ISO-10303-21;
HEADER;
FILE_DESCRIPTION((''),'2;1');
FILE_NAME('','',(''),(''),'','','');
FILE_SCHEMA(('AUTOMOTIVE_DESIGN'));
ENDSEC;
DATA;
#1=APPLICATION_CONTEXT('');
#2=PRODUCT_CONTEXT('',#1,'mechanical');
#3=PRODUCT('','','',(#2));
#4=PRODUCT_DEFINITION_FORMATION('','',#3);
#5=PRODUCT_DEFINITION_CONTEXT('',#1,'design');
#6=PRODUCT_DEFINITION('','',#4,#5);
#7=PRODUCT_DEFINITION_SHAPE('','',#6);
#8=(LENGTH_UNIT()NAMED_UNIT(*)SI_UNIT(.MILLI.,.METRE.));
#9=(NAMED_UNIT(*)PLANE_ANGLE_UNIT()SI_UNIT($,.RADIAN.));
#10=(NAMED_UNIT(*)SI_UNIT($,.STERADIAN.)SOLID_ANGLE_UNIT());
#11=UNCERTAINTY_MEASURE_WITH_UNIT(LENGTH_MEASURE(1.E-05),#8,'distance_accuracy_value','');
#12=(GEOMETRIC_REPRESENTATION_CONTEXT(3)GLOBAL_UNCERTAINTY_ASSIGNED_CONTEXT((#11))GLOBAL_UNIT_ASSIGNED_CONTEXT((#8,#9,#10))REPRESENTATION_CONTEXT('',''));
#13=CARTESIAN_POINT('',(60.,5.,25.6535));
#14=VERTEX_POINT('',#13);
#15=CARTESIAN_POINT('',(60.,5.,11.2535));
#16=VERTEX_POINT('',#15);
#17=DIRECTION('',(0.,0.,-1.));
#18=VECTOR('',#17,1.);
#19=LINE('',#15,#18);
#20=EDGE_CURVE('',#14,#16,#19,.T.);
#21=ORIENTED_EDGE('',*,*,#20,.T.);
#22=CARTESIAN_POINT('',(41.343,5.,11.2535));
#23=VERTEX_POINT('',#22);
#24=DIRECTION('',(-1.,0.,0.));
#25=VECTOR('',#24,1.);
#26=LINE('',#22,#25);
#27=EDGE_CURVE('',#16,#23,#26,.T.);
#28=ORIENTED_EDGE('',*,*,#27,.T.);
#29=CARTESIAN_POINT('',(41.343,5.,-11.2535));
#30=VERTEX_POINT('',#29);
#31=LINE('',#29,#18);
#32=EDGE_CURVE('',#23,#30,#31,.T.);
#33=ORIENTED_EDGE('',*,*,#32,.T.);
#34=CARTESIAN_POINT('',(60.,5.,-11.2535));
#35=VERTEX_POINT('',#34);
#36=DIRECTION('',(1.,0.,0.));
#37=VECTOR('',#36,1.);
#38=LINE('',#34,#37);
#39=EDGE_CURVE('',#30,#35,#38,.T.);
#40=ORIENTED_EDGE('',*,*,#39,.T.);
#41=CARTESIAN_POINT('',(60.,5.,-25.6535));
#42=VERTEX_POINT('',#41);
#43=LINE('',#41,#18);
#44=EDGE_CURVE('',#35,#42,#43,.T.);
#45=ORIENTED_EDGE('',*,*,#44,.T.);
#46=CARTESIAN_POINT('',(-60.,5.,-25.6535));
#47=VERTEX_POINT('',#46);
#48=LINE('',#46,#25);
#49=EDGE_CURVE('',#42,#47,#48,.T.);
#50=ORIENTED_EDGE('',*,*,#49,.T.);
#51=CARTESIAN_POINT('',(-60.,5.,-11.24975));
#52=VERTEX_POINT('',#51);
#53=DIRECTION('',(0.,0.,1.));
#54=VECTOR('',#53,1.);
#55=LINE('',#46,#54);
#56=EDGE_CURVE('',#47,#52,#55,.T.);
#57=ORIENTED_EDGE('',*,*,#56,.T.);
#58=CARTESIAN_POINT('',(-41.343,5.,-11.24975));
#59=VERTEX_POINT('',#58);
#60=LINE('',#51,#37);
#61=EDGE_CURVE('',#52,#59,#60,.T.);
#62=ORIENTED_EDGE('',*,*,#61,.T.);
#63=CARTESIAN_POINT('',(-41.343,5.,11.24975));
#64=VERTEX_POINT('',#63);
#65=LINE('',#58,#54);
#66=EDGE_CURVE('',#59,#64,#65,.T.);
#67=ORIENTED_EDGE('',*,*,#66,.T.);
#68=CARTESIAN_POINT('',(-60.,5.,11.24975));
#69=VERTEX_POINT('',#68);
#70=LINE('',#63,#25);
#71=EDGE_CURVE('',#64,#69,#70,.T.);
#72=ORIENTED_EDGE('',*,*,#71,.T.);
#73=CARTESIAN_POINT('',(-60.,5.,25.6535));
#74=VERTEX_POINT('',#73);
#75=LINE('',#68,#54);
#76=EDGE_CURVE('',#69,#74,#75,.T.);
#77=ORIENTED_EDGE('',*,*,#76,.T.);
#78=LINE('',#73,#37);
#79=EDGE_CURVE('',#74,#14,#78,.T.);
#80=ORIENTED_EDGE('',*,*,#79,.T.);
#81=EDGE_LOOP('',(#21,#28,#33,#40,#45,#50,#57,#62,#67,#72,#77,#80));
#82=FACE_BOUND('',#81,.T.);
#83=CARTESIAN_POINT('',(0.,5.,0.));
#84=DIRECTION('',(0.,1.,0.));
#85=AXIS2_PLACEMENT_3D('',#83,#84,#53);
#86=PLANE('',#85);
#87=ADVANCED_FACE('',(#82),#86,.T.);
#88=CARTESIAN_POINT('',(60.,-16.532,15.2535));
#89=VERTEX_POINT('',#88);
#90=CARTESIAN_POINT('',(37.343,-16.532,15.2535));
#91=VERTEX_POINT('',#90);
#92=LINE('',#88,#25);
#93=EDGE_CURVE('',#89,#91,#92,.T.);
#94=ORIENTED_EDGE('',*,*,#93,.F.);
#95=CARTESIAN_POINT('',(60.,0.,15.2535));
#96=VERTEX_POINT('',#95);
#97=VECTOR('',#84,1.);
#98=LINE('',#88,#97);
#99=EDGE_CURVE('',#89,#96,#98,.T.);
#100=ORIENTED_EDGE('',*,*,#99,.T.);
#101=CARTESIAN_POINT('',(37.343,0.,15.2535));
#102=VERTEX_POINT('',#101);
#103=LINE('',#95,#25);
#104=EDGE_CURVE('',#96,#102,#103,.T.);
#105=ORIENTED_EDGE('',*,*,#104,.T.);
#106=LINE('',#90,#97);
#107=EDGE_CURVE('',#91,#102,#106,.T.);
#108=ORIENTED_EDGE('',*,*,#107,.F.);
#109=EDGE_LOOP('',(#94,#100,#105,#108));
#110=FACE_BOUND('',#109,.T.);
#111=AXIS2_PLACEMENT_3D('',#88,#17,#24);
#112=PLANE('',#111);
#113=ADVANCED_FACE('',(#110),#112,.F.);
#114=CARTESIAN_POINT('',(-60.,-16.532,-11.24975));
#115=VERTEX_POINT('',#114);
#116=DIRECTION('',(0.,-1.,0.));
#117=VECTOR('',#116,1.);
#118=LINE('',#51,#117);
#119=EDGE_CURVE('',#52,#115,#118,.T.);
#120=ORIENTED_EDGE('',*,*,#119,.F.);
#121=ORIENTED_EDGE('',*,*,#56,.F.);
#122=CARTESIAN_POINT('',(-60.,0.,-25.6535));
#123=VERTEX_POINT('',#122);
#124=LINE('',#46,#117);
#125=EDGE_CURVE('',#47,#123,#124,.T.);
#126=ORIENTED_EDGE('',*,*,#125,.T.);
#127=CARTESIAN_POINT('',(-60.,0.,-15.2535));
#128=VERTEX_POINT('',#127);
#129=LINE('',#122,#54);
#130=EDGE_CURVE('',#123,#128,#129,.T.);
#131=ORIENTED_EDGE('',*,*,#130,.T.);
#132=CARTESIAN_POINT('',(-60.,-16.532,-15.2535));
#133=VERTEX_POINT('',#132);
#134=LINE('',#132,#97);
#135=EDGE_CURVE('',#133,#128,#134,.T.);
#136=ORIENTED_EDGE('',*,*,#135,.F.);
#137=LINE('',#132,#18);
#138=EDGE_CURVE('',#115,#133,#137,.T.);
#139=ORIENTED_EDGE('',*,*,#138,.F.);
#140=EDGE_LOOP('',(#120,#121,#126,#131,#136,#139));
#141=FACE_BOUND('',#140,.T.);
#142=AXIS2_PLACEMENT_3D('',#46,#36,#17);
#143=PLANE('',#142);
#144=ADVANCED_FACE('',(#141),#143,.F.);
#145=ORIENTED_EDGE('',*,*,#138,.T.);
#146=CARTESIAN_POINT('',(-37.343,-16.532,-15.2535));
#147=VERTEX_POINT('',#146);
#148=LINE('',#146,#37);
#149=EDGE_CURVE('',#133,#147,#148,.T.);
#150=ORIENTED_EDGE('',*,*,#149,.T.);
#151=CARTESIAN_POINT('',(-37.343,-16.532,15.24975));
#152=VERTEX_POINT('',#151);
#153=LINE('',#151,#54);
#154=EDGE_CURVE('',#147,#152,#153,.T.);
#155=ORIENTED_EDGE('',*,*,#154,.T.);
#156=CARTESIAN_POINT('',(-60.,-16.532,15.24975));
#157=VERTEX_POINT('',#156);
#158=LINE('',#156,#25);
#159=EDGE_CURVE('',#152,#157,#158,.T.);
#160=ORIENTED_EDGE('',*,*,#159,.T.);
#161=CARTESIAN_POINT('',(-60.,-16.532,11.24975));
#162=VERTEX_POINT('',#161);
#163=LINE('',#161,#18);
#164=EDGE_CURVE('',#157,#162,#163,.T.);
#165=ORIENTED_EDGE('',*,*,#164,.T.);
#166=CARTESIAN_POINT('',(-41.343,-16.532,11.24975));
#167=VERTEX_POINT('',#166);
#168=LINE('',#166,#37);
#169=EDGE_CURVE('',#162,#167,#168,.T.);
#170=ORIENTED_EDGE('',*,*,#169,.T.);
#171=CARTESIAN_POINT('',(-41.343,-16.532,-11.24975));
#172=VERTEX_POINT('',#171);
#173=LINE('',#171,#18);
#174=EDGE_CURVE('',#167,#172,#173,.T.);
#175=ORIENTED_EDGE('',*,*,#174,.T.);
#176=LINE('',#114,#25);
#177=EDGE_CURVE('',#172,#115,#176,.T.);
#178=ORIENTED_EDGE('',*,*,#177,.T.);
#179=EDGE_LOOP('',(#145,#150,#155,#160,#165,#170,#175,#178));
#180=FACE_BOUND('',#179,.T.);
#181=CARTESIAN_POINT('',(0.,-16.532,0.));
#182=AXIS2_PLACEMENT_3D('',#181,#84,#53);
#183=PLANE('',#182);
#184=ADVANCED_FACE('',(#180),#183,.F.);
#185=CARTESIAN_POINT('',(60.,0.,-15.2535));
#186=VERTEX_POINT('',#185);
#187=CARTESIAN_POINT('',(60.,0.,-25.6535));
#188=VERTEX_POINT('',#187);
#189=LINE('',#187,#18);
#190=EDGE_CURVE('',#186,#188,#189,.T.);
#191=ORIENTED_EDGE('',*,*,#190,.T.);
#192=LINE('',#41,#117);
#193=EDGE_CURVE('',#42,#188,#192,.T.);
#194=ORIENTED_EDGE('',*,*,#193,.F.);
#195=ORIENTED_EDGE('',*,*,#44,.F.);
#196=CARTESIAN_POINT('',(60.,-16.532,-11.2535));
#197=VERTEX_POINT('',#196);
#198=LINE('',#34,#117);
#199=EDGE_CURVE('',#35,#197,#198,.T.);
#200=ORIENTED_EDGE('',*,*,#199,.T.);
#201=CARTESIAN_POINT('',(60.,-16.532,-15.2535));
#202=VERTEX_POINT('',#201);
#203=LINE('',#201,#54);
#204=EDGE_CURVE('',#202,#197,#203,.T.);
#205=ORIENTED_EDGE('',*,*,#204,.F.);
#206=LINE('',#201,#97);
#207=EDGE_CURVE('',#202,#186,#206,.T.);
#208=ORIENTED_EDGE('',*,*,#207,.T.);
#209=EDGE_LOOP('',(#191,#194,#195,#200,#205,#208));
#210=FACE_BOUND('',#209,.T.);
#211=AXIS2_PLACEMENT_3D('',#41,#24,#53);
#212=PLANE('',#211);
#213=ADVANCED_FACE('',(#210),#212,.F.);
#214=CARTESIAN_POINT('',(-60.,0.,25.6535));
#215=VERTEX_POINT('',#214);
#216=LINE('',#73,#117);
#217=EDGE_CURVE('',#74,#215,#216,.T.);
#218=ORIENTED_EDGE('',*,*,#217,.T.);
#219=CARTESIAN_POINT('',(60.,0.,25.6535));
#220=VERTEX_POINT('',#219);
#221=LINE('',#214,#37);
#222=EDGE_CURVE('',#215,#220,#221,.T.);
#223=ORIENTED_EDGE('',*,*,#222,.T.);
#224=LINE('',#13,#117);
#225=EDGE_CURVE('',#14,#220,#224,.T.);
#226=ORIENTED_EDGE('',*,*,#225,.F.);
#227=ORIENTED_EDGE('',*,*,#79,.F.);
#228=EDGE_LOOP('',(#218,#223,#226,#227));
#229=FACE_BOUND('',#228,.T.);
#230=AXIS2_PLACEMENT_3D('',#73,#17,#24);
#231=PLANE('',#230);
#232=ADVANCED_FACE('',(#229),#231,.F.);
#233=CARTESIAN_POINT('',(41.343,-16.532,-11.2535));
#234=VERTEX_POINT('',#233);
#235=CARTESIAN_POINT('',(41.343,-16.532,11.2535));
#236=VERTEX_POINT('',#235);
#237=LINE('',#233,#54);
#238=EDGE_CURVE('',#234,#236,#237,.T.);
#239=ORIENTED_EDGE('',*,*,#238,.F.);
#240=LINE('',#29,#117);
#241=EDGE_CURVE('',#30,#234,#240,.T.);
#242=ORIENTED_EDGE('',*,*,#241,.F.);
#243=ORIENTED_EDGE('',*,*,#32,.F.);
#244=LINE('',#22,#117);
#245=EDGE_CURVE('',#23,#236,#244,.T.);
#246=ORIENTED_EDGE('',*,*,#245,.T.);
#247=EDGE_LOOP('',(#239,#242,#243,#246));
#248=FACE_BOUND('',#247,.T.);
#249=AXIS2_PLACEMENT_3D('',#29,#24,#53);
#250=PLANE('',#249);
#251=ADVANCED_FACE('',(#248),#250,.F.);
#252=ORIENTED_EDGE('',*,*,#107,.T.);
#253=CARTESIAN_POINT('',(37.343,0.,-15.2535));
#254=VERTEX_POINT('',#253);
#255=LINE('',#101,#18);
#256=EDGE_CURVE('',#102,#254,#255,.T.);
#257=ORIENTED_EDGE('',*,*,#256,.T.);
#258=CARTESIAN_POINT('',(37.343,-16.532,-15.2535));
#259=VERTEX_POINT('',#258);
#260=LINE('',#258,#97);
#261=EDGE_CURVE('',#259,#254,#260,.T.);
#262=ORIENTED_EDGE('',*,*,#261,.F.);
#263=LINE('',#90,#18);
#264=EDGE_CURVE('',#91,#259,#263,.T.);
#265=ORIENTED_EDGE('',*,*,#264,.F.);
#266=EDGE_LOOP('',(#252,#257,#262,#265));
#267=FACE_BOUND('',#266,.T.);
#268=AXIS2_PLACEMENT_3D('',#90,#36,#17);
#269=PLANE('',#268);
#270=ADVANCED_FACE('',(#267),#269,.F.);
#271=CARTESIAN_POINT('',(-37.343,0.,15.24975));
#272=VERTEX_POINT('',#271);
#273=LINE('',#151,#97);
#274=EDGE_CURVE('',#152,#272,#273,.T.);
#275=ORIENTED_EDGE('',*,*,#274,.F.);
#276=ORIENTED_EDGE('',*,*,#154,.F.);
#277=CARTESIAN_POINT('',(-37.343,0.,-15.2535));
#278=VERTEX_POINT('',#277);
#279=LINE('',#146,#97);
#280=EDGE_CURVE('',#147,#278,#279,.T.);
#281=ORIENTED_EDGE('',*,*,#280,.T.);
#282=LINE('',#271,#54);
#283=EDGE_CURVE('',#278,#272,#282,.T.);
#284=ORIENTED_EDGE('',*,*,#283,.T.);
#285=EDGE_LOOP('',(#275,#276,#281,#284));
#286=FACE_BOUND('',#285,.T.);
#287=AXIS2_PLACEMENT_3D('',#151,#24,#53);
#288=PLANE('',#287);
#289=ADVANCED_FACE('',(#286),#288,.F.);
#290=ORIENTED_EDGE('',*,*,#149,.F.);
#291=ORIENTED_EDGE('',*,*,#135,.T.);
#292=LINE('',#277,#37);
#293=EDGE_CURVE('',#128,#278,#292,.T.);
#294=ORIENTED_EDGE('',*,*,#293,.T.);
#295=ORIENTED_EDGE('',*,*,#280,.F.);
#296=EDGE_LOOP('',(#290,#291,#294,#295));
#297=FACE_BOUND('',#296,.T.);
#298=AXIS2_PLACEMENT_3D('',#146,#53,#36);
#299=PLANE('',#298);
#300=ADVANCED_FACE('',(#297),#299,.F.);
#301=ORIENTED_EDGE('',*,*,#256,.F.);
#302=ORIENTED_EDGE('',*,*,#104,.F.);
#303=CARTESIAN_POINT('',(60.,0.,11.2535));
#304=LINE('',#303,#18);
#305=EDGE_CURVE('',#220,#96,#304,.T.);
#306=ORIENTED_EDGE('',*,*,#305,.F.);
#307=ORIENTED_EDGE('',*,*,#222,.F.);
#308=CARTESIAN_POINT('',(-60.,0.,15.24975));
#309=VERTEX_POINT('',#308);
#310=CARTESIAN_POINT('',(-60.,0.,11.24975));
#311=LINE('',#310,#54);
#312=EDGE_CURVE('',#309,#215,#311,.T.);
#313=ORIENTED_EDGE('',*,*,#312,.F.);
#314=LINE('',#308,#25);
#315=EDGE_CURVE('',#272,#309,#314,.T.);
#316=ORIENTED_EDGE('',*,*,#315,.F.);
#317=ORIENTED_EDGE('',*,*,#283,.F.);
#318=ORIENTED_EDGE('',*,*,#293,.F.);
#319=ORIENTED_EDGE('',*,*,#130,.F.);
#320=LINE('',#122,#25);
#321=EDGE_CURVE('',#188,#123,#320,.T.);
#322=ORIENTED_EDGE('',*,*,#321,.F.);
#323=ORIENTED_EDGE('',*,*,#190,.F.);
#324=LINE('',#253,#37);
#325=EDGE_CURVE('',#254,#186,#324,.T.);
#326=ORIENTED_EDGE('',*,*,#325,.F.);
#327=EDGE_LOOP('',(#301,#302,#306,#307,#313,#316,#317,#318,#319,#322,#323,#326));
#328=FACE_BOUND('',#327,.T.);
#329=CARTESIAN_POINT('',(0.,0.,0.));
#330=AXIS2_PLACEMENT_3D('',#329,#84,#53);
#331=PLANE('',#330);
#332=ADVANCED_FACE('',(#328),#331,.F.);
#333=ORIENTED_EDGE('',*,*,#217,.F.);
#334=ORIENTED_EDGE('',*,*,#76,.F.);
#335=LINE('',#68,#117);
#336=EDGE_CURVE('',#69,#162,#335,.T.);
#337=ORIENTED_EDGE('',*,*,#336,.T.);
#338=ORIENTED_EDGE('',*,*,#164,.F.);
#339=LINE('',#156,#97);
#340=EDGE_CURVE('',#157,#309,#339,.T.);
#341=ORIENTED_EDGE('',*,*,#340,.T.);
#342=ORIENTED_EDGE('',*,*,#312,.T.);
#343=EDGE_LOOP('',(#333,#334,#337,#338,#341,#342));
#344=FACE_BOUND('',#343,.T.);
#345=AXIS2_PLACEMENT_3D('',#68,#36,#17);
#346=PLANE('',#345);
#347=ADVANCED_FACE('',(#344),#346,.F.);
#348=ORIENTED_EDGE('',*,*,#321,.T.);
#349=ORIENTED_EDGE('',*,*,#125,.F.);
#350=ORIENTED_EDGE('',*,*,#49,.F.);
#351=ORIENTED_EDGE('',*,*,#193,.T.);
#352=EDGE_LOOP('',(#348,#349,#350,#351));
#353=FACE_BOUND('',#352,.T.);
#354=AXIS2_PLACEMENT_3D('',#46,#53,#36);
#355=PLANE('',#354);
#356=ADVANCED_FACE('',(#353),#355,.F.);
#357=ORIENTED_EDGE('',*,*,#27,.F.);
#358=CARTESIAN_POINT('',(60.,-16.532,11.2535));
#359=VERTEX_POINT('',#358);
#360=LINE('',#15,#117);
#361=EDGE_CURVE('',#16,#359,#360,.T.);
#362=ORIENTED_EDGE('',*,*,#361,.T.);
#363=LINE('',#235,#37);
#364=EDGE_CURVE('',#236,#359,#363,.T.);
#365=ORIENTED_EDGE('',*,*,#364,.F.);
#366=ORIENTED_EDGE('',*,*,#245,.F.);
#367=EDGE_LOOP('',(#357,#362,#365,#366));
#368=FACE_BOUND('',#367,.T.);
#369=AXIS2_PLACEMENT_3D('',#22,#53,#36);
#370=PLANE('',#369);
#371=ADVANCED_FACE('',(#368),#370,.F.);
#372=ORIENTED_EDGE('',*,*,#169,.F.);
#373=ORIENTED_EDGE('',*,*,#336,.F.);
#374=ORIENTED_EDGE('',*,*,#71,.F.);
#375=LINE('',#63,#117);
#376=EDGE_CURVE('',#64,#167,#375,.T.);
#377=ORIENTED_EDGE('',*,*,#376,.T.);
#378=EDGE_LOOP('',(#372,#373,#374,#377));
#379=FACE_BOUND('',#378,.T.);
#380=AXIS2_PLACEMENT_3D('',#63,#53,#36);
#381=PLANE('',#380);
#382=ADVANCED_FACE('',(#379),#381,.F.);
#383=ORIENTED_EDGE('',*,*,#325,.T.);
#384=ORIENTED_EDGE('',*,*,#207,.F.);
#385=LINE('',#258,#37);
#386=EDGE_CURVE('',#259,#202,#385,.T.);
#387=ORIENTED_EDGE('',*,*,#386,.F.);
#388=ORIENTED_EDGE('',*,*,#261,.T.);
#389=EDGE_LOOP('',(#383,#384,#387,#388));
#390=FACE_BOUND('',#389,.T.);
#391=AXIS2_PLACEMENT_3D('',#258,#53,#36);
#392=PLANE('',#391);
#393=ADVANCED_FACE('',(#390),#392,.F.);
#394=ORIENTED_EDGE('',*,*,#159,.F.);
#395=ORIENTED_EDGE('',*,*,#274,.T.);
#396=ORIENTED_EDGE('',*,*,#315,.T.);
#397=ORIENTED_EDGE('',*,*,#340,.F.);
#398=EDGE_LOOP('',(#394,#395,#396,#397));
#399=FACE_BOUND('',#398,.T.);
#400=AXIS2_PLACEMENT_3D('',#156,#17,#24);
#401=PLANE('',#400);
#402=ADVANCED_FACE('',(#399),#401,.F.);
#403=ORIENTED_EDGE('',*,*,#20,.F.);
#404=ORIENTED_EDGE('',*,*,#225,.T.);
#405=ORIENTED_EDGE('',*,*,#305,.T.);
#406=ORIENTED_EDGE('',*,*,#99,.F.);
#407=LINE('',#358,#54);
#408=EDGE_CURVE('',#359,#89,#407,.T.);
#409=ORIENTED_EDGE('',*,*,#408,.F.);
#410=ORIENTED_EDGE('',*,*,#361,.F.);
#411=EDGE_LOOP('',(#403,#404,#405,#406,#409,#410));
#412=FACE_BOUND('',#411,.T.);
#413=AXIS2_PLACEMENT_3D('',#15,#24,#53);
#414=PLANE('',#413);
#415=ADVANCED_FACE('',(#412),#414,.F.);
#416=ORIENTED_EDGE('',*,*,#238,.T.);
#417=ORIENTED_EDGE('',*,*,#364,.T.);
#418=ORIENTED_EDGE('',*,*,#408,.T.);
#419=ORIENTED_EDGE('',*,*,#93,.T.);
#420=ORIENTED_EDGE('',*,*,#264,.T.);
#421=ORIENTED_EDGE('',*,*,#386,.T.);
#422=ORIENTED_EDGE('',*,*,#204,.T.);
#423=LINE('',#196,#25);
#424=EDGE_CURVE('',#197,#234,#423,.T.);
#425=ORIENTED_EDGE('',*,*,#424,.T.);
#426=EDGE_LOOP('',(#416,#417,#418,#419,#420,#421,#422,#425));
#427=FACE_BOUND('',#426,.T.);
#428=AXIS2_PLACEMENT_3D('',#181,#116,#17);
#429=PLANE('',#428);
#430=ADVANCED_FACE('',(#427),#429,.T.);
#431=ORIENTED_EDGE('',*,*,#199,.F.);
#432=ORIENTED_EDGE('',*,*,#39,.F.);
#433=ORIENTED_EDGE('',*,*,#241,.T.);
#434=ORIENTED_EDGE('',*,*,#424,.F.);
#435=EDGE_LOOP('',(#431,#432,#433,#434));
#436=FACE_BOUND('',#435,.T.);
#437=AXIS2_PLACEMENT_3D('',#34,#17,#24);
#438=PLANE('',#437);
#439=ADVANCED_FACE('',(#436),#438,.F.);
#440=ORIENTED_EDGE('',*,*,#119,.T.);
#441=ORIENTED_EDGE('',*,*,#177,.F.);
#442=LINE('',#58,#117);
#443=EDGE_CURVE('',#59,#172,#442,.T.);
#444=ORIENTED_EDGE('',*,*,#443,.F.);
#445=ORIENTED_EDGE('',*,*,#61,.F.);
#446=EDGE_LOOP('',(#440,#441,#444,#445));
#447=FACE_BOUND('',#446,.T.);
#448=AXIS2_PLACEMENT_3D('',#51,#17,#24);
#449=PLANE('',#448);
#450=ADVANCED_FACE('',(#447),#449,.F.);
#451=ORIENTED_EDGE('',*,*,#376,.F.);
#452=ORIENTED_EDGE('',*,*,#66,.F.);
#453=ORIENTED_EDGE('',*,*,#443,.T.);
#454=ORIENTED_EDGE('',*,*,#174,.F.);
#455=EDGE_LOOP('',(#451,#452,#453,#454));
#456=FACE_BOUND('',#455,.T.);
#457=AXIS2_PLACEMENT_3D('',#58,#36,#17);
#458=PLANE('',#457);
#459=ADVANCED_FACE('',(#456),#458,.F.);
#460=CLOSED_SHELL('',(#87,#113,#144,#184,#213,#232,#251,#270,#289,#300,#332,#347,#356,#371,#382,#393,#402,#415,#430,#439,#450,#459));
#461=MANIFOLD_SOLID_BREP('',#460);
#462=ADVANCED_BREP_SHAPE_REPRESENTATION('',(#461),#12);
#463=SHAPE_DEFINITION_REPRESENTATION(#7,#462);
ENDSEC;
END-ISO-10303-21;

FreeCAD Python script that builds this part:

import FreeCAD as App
import Part
import Sketcher


def add_polygon(sketch, points):
    """Adds a closed chain of lines whose ends are joined by coincident constraints."""
    first, n = sketch.GeometryCount, len(points)
    for a, b in zip(points, points[1:] + points[:1]):
        sketch.addGeometry(Part.LineSegment(App.Vector(*a, 0), App.Vector(*b, 0)), False)
    for i in range(n):
        sketch.addConstraint(Sketcher.Constraint("Coincident", first + i, 2, first + (i + 1) % n, 1))

doc = App.newDocument("Part")
body = doc.addObject("PartDesign::Body", "Body")

sketch1 = body.newObject("Sketcher::SketchObject", "Sketch")
sketch1.AttachmentSupport = (doc.getObject("XZ_Plane"), [""])
sketch1.MapMode = "FlatFace"
add_polygon(sketch1, [(-60, -26), (-60, -11), (-41, -11), (-41, 11), (-60, 11), (-60, 26), (60, 26), (60, 11), (41, 11), (41, -11), (60, -11), (60, -26)])
sketch1.addConstraint([
    Sketcher.Constraint("Vertical", 0),
    Sketcher.Constraint("Horizontal", 1),
    Sketcher.Constraint("Vertical", 2),
    Sketcher.Constraint("Horizontal", 3),
    Sketcher.Constraint("Vertical", 4),
    Sketcher.Constraint("Horizontal", 5),
    Sketcher.Constraint("Vertical", 6),
    Sketcher.Constraint("Horizontal", 7),
    Sketcher.Constraint("Vertical", 8),
    Sketcher.Constraint("Horizontal", 9),
    Sketcher.Constraint("Vertical", 10),
    Sketcher.Constraint("Horizontal", 11),
    Sketcher.Constraint("Symmetric", 4, 2, 10, 2, -1, 1),
    Sketcher.Constraint("Symmetric", 0, 2, 3, 2, -1),
    Sketcher.Constraint("Symmetric", 6, 2, 9, 2, -1),
    Sketcher.Constraint("Equal", 3, 7),
    Sketcher.Constraint("DistanceX", 5, 1, 5, 2, 120.0),
    Sketcher.Constraint("DistanceY", 6, 2, 6, 1, 14.4),
    Sketcher.Constraint("DistanceX", 1, 1, 1, 2, 18.657),
    Sketcher.Constraint("DistanceY", 8, 2, 8, 1, 22.507),
    Sketcher.Constraint("DistanceY", 2, 1, 2, 2, 22.4995),
])
pad1 = body.newObject("PartDesign::Pad", "Pad")
pad1.Profile = sketch1
pad1.Length = 5
pad1.Reversed = True

sketch2 = body.newObject("Sketcher::SketchObject", "Sketch001")
sketch2.AttachmentSupport = (doc.getObject("XZ_Plane"), [""])
sketch2.MapMode = "FlatFace"
add_polygon(sketch2, [(60, 15.3), (37.3, 15.3), (37.3, -15.3), (60, -15.3), (60, -11.3), (41.3, -11.3), (41.3, 11.3), (60, 11.3)])
add_polygon(sketch2, [(-60, 15.2), (-60, 11.2), (-41.3, 11.2), (-41.3, -11.2), (-60, -11.2), (-60, -15.3), (-37.3, -15.3), (-37.3, 15.2)])
sketch2.addConstraint([
    Sketcher.Constraint("Horizontal", 0),
    Sketcher.Constraint("Vertical", 1),
    Sketcher.Constraint("Horizontal", 2),
    Sketcher.Constraint("Vertical", 3),
    Sketcher.Constraint("Horizontal", 4),
    Sketcher.Constraint("Vertical", 5),
    Sketcher.Constraint("Horizontal", 6),
    Sketcher.Constraint("Vertical", 7),
    Sketcher.Constraint("Vertical", 8),
    Sketcher.Constraint("Horizontal", 9),
    Sketcher.Constraint("Vertical", 10),
    Sketcher.Constraint("Horizontal", 11),
    Sketcher.Constraint("Vertical", 12),
    Sketcher.Constraint("Horizontal", 13),
    Sketcher.Constraint("Vertical", 14),
    Sketcher.Constraint("Horizontal", 15),
    Sketcher.Constraint("Symmetric", 7, 2, 12, 2, -1, 1),
    Sketcher.Constraint("Symmetric", 2, 2, 12, 2, -2),
    Sketcher.Constraint("Symmetric", 8, 2, 11, 2, -1),
    Sketcher.Constraint("Equal", 6, 9),
    Sketcher.Constraint("Equal", 2, 13),
    Sketcher.Constraint("Equal", 3, 7),
    Sketcher.Constraint("Equal", 7, 8),
    Sketcher.Constraint("DistanceY", 3, 1, 3, 2, 4.0),
    Sketcher.Constraint("DistanceX", -1, 1, 2, 2, 60.0),
    Sketcher.Constraint("DistanceX", 1, 2, 4, 2, 4.0),
    Sketcher.Constraint("DistanceX", 0, 2, 0, 1, 22.657),
    Sketcher.Constraint("DistanceY", 1, 2, 1, 1, 30.507),
    Sketcher.Constraint("DistanceY", 10, 2, 10, 1, 22.4995),
])
pad2 = body.newObject("PartDesign::Pad", "Pad001")
pad2.Profile = sketch2
pad2.Length = 16.532

doc.recompute()
